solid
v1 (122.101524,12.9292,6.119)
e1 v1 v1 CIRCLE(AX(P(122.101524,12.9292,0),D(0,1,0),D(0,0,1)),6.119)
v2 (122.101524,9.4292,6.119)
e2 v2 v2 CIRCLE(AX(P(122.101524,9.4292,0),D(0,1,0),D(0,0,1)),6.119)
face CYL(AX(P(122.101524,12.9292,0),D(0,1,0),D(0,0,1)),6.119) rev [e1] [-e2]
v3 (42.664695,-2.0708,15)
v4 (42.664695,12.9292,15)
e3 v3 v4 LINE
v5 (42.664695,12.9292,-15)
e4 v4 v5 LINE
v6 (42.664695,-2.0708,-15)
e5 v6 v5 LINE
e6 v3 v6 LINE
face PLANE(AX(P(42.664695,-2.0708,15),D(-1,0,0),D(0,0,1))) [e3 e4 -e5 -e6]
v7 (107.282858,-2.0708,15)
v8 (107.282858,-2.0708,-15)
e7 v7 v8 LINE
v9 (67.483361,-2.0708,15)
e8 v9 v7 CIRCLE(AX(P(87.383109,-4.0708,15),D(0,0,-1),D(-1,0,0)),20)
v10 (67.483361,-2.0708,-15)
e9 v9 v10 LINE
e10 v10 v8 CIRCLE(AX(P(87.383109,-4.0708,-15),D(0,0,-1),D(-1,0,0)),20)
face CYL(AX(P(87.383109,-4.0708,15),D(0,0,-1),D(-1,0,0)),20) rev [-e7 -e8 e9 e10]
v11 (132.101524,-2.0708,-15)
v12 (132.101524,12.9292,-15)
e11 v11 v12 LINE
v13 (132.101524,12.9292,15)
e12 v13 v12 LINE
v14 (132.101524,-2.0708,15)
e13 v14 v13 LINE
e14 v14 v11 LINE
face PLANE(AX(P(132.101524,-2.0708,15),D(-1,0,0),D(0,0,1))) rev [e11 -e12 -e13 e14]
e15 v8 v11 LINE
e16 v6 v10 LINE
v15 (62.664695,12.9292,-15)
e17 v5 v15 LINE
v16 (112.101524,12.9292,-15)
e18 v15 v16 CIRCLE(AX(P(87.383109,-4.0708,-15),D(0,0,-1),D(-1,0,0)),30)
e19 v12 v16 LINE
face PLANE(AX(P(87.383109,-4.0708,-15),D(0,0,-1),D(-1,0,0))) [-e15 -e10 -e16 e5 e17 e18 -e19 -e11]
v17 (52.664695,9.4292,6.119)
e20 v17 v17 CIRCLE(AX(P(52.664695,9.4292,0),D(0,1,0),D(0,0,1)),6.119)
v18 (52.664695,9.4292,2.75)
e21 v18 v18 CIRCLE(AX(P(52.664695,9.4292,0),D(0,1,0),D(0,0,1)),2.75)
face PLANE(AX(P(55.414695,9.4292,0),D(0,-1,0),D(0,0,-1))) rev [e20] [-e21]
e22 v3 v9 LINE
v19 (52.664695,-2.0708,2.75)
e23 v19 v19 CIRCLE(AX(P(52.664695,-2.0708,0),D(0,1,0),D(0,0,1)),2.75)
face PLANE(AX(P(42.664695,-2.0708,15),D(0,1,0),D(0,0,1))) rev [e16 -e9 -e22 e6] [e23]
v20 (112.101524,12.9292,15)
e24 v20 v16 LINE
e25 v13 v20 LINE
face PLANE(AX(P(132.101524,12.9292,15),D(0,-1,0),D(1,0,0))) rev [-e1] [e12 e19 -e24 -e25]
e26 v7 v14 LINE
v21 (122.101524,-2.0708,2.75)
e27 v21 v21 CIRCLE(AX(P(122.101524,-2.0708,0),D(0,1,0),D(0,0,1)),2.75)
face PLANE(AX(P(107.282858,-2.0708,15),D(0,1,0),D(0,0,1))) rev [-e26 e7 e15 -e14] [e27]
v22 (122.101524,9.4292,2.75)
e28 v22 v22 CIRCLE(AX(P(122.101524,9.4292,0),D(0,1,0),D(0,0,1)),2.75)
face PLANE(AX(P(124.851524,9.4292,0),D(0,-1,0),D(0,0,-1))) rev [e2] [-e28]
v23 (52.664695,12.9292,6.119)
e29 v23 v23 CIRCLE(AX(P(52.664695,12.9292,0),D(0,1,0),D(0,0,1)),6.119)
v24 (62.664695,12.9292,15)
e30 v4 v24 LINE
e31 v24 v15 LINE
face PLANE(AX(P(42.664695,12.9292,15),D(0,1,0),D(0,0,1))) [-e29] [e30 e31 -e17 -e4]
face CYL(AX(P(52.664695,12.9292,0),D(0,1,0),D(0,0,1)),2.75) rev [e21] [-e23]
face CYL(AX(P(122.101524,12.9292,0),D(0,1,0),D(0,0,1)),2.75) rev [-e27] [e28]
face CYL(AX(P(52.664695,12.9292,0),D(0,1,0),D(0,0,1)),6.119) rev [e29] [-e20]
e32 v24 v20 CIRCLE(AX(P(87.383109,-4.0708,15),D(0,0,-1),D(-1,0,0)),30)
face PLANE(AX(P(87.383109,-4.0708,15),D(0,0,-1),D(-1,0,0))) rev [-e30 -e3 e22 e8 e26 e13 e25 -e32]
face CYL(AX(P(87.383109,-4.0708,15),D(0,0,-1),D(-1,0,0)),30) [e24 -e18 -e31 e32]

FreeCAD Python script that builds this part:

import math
import FreeCAD as App
import Part
import Sketcher

V = App.Vector

doc = App.newDocument("Part")
body = doc.addObject("PartDesign::Body", "Body")

# Sketch on XY plane
sketch1 = body.newObject("Sketcher::SketchObject", "Sketch")
sketch1.AttachmentSupport = (doc.getObject("XY_Plane"), [""])
sketch1.MapMode = "FlatFace"
sketch1.addGeometry([
    Part.LineSegment(V(43, -2, 0), V(67, -2, 0)),  # 0
    Part.ArcOfCircle(Part.Circle(V(87, -4, 0), V(0, 0, 1), 20), math.radians(6), math.radians(174)),  # 1
    Part.LineSegment(V(107, -2, 0), V(132, -2, 0)),  # 2
    Part.LineSegment(V(132, -2, 0), V(132, 13, 0)),  # 3
    Part.LineSegment(V(132, 13, 0), V(112, 13, 0)),  # 4
    Part.ArcOfCircle(Part.Circle(V(87, -4, 0), V(0, 0, 1), 30), math.radians(35), math.radians(145)),  # 5
    Part.LineSegment(V(63, 13, 0), V(43, 13, 0)),  # 6
    Part.LineSegment(V(43, 13, 0), V(43, -2, 0)),  # 7
], False)
sketch1.addConstraint([
    Sketcher.Constraint("Coincident", 0, 2, 1, 2),
    Sketcher.Constraint("Coincident", 1, 1, 2, 1),
    Sketcher.Constraint("Coincident", 2, 2, 3, 1),
    Sketcher.Constraint("Coincident", 3, 2, 4, 1),
    Sketcher.Constraint("Coincident", 4, 2, 5, 1),
    Sketcher.Constraint("Coincident", 5, 2, 6, 1),
    Sketcher.Constraint("Coincident", 6, 2, 7, 1),
    Sketcher.Constraint("Coincident", 7, 2, 0, 1),
    Sketcher.Constraint("Horizontal", 0),
    Sketcher.Constraint("Horizontal", 2),
    Sketcher.Constraint("Vertical", 3),
    Sketcher.Constraint("Horizontal", 4),
    Sketcher.Constraint("Horizontal", 6),
    Sketcher.Constraint("Vertical", 7),
    Sketcher.Constraint("Coincident", 5, 3, 1, 3),
    Sketcher.Constraint("Horizontal", 0, 2, 1, 1),
    Sketcher.Constraint("Horizontal", 4, 2, 5, 2),
    Sketcher.Constraint("Equal", 0, 2),
    Sketcher.Constraint("Radius", 1, 20.0),
    Sketcher.Constraint("Radius", 5, 30.0),
    Sketcher.Constraint("DistanceX", 4, 2, 4, 1, 20.0),
    Sketcher.Constraint("DistanceY", 3, 1, 3, 2, 15.0),
    Sketcher.Constraint("DistanceY", 1, 3, 0, 2, 2.0),
    Sketcher.Constraint("DistanceY", 1, 3, -1, 1, 4.0708),
    Sketcher.Constraint("DistanceX", -1, 1, 1, 3, 87.383109),
])
pad1 = body.newObject("PartDesign::Pad", "Pad")
pad1.Profile = sketch1
pad1.Length = 30
pad1.Midplane = True

# Sketch on XZ plane
sketch2 = body.newObject("Sketcher::SketchObject", "Sketch001")
sketch2.AttachmentSupport = (doc.getObject("XZ_Plane"), [""])
sketch2.MapMode = "FlatFace"
sketch2.AttachmentOffset = App.Placement(V(0, 0, -12.9292), App.Rotation())
sketch2.addGeometry([
    Part.Circle(V(52.7, 0, 0), V(0, 0, 1), 2.8),
    Part.Circle(V(122.1, 0, 0), V(0, 0, 1), 2.8),
], False)
sketch2.addConstraint([
    Sketcher.Constraint("Equal", 0, 1),
    Sketcher.Constraint("PointOnObject", 0, 3, -1),
    Sketcher.Constraint("PointOnObject", 1, 3, -1),
    Sketcher.Constraint("Diameter", 0, 5.5),
    Sketcher.Constraint("DistanceX", 0, 3, 1, 3, 69.436828),
    Sketcher.Constraint("DistanceX", -1, 1, 0, 3, 52.664695),
])
doc.recompute()
hole = body.newObject("PartDesign::Hole", "Hole")
hole.Profile = sketch2
hole.ThreadType = "None"
hole.Diameter = 5.5
hole.DepthType = "ThroughAll"
hole.HoleCutType = "Counterbore"
hole.HoleCutDiameter = 12.238
hole.HoleCutDepth = 3.5
hole.Reversed = True

doc.recompute()
